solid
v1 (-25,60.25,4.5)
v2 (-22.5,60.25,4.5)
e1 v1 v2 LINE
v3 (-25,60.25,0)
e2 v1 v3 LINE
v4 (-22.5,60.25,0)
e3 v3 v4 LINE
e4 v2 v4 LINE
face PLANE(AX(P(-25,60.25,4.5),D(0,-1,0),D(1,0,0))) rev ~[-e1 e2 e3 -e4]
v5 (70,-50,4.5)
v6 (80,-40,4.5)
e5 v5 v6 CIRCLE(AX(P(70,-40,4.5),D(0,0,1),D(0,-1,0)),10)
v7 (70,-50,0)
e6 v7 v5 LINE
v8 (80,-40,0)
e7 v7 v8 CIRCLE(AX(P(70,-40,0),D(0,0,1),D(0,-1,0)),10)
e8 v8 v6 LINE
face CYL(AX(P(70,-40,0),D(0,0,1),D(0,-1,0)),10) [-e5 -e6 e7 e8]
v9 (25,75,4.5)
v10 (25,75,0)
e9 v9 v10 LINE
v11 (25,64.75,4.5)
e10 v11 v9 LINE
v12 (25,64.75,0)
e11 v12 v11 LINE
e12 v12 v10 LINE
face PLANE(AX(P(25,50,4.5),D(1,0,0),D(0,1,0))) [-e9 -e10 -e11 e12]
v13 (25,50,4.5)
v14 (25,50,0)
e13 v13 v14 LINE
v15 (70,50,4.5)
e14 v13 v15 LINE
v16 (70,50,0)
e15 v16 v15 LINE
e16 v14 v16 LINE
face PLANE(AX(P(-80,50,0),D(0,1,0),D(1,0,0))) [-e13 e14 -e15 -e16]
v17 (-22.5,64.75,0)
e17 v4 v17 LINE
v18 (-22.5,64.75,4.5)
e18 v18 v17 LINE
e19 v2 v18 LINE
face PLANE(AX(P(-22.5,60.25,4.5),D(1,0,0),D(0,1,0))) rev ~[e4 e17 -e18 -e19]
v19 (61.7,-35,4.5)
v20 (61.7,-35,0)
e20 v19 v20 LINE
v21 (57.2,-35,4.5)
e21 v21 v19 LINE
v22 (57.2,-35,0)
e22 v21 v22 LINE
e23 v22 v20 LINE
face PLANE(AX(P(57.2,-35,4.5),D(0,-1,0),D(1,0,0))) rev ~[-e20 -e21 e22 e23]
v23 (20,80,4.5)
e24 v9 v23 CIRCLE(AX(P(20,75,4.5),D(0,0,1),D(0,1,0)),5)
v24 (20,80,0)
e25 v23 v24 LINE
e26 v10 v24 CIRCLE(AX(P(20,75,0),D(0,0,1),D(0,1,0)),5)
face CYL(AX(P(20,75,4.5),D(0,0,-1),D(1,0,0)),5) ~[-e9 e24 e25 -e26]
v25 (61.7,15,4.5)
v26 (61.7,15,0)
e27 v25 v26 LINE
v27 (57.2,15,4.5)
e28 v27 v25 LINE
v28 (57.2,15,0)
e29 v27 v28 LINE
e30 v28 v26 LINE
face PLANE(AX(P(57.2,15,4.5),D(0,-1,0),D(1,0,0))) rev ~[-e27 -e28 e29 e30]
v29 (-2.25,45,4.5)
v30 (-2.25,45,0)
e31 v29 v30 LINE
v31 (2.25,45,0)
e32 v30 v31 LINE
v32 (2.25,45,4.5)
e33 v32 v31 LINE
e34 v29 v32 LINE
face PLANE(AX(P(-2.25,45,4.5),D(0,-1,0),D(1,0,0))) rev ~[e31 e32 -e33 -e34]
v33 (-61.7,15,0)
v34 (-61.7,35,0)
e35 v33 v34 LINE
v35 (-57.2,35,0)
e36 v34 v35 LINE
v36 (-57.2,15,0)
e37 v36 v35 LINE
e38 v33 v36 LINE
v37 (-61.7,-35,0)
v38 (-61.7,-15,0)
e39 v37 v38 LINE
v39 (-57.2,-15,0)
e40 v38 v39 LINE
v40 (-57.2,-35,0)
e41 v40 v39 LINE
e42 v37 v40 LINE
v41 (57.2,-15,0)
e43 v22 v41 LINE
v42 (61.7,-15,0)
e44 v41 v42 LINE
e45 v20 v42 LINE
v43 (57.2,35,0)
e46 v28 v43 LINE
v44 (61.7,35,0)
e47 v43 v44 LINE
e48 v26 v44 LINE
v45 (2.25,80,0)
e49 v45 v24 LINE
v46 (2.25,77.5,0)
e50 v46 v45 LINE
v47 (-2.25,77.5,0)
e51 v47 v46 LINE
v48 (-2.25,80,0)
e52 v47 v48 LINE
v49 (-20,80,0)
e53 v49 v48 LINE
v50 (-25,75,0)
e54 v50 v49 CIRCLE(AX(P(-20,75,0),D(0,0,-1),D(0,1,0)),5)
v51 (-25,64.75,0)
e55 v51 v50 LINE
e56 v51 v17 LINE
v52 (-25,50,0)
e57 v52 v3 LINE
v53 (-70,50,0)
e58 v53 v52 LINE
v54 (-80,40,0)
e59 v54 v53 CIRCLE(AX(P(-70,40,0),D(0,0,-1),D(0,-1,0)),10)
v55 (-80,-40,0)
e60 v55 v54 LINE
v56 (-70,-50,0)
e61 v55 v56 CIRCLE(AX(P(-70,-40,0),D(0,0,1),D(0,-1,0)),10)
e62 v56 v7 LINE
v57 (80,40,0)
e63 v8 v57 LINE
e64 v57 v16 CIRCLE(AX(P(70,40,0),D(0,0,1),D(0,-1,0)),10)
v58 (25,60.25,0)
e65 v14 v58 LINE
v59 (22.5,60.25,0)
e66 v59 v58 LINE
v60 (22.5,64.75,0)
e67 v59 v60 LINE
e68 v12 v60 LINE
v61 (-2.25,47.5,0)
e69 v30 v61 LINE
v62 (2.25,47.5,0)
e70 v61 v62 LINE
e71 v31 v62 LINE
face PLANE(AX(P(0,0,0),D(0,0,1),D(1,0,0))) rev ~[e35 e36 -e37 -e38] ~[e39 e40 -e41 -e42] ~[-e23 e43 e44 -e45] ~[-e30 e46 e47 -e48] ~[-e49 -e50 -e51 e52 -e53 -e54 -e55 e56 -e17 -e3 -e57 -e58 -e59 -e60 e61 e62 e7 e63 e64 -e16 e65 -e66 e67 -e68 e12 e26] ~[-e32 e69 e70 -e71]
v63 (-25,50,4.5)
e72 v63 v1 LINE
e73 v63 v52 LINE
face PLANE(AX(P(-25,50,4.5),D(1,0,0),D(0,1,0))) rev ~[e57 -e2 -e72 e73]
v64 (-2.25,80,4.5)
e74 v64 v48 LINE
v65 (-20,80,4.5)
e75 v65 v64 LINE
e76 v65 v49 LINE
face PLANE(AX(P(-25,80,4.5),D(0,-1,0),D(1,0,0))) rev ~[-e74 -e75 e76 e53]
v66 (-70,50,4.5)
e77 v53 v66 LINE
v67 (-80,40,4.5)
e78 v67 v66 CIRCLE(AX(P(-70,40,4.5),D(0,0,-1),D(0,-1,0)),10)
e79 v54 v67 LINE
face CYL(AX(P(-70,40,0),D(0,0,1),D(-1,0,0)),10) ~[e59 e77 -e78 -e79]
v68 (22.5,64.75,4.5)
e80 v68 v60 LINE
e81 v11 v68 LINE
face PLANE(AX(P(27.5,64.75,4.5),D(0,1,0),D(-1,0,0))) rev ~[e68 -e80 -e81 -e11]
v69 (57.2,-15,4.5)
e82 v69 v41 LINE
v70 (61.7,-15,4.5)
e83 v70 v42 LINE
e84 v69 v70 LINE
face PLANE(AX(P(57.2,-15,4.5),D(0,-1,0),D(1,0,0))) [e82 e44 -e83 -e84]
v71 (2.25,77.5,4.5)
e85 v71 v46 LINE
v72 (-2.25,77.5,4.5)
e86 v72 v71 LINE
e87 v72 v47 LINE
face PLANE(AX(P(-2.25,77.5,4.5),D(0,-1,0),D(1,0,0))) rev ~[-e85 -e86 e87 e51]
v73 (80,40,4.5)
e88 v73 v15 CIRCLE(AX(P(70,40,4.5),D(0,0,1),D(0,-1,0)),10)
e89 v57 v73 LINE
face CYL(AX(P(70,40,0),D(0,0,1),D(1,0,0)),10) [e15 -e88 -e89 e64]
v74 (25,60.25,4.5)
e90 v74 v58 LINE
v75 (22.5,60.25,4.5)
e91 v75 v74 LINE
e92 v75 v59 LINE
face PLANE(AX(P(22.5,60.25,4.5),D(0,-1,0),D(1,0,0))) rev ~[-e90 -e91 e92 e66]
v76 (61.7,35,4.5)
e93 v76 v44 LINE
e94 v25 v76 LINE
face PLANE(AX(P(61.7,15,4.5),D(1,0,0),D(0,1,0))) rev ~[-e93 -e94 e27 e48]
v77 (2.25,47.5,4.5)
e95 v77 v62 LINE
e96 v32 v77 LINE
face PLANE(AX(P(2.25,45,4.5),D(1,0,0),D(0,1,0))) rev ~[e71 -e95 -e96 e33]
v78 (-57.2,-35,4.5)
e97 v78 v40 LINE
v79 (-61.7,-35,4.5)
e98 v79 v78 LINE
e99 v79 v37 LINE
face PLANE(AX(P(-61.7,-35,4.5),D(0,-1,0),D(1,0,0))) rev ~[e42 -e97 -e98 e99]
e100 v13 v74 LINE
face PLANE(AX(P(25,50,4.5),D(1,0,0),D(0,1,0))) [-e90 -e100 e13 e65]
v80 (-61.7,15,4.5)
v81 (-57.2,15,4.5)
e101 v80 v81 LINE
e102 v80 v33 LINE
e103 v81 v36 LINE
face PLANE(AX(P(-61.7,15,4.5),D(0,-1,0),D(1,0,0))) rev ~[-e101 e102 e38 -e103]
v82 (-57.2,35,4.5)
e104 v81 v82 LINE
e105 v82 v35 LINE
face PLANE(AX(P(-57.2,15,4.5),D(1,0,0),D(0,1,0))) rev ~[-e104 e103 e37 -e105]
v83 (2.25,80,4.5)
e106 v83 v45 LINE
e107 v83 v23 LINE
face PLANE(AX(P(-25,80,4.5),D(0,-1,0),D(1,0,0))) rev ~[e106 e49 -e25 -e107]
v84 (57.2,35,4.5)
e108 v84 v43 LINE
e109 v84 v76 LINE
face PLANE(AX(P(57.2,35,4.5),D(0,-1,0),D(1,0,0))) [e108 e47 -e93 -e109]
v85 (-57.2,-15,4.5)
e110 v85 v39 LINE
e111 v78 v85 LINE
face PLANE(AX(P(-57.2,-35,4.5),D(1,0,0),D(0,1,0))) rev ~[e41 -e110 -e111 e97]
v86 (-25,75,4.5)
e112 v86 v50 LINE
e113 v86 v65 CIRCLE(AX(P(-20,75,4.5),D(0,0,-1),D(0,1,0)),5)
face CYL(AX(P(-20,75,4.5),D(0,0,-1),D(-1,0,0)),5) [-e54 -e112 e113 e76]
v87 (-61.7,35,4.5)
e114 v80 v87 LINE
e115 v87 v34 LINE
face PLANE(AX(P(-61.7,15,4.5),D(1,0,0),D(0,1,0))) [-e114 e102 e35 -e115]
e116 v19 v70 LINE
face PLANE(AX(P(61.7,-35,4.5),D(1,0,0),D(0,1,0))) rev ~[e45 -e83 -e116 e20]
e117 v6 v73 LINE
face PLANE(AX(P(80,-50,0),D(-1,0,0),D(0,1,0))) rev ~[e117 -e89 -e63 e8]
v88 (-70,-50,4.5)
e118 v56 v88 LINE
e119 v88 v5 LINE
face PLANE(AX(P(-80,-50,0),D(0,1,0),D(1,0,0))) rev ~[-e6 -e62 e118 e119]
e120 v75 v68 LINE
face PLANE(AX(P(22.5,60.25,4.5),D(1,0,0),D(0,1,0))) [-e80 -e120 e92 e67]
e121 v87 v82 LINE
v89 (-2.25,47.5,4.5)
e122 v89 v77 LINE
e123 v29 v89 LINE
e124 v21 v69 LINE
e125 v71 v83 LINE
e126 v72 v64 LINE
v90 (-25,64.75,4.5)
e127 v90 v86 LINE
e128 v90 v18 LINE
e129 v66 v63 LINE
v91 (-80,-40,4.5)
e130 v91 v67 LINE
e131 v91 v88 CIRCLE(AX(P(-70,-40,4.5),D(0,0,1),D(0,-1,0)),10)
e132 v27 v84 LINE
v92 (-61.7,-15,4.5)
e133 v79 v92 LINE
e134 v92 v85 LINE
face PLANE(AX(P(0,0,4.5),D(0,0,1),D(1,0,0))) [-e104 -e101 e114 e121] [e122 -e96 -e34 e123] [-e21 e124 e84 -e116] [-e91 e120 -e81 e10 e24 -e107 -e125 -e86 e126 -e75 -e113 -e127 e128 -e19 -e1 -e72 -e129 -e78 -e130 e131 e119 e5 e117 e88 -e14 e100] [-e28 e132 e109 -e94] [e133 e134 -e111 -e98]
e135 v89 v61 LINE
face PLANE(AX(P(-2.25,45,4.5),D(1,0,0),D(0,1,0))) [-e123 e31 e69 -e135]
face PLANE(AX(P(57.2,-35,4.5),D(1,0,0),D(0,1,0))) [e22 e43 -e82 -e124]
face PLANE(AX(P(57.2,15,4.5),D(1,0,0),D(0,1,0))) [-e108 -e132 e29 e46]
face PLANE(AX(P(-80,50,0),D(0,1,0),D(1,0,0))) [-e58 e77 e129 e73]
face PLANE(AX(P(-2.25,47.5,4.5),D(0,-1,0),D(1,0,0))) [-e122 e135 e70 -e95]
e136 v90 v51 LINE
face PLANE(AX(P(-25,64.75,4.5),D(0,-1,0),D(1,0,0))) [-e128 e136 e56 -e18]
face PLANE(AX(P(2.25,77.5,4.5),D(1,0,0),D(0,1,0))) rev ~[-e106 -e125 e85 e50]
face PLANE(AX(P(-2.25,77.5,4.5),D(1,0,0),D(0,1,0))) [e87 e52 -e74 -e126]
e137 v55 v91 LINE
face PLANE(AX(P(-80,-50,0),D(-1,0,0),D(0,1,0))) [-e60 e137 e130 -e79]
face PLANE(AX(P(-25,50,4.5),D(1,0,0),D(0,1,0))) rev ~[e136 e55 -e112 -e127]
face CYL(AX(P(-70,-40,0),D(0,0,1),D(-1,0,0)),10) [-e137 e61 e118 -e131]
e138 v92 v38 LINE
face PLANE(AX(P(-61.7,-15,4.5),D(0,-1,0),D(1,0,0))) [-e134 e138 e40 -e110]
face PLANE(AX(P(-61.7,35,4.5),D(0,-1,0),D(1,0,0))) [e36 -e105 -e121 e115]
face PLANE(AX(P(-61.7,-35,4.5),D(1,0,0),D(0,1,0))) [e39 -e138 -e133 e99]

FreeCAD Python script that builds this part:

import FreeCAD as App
import Part
import Sketcher
from FreeCAD import Vector


def edges_at(feature, points):
    """Names of the edges that pass closest to the given points."""
    edges = feature.Shape.Edges
    near = lambda p: min(range(len(edges)), key=lambda i: edges[i].distToShape(Part.Vertex(*p))[0])
    return sorted({f"Edge{near(p) + 1}" for p in points})


def add_polygon(sketch, points):
    """Adds a closed chain of lines whose ends are joined by coincident constraints."""
    first, n = sketch.GeometryCount, len(points)
    for a, b in zip(points, points[1:] + points[:1]):
        sketch.addGeometry(Part.LineSegment(App.Vector(*a, 0), App.Vector(*b, 0)), False)
    for i in range(n):
        sketch.addConstraint(Sketcher.Constraint("Coincident", first + i, 2, first + (i + 1) % n, 1))

doc = App.newDocument("Part")
params = doc.addObject("Spreadsheet::Sheet", "Params")
for row, (alias, value) in enumerate([
    ("sketch1_width", "160 mm"),
    ("sketch1_height", "100 mm"),
    ("pad1_length", "4.5 mm"),
    ("fillet_radius", "10 mm"),
    ("sketch2_height", "20 mm"),
    ("sketch2_width", "4.5 mm"),
    ("pocket1_length", "5 mm"),
    ("sketch3_width", "50 mm"),
    ("sketch3_height", "30 mm"),
    ("pad2_length", "4.5 mm"),
    ("fillet2_radius", "5 mm"),
    ("sketch4_width", "5 mm"),
    ("sketch4_width2", "4.5 mm"),
    ("sketch4_width3", "2.5 mm"),
    ("pocket2_length", "4.5 mm"),
], start=1):
    params.set(f"A{row}", alias)
    params.set(f"B{row}", "=" + value)
    params.setAlias(f"B{row}", alias)

body = doc.addObject("PartDesign::Body", "Body")

# Sketch on XY plane
sketch1 = body.newObject("Sketcher::SketchObject", "Sketch")
sketch1.AttachmentSupport = (doc.getObject("XY_Plane"), [""])
sketch1.MapMode = "FlatFace"
add_polygon(sketch1, [(-80, 50), (-80, -50), (80, -50), (80, 50)])  # lines 0-3
sketch1.addConstraint([
    Sketcher.Constraint("Vertical", 0),
    Sketcher.Constraint("Horizontal", 1),
    Sketcher.Constraint("Vertical", 2),
    Sketcher.Constraint("Horizontal", 3),
    Sketcher.Constraint("Symmetric", 0, 2, 2, 2, -1, 1),
    Sketcher.Constraint("DistanceX", 1, 1, 1, 2, 160.0),
    Sketcher.Constraint("DistanceY", 0, 2, 0, 1, 100.0),
])
sketch1.setExpression("Constraints[9]", "Params.sketch1_width")
sketch1.setExpression("Constraints[10]", "Params.sketch1_height")
pad1 = body.newObject("PartDesign::Pad", "Pad")
pad1.Profile = sketch1
pad1.setExpression("Length", "Params.pad1_length")
doc.recompute()

fillet = body.newObject("PartDesign::Fillet", "Fillet")
fillet.Base = (pad1, edges_at(pad1, [
    (80, -50, 2.25),
    (-80, -50, 2.25),
    (-80, 50, 2.25),
    (80, 50, 2.25),
]))
fillet.setExpression("Radius", "Params.fillet_radius")

# Sketch on XY plane
sketch2 = body.newObject("Sketcher::SketchObject", "Sketch001")
sketch2.AttachmentSupport = (doc.getObject("XY_Plane"), [""])
sketch2.MapMode = "FlatFace"
sketch2.AttachmentOffset = App.Placement(Vector(0, 0, 4.5), App.Rotation())
add_polygon(sketch2, [(-61.7, 35), (-61.7, 15), (-57.2, 15), (-57.2, 35)])  # lines 0-3
add_polygon(sketch2, [(-61.7, -15), (-61.7, -35), (-57.2, -35), (-57.2, -15)])  # lines 4-7
add_polygon(sketch2, [(57.2, -15), (57.2, -35), (61.7, -35), (61.7, -15)])  # lines 8-11
add_polygon(sketch2, [(57.2, 35), (57.2, 15), (61.7, 15), (61.7, 35)])  # lines 12-15
sketch2.addConstraint([
    Sketcher.Constraint("Vertical", 0),
    Sketcher.Constraint("Horizontal", 1),
    Sketcher.Constraint("Vertical", 2),
    Sketcher.Constraint("Horizontal", 3),
    Sketcher.Constraint("Vertical", 4),
    Sketcher.Constraint("Horizontal", 5),
    Sketcher.Constraint("Vertical", 6),
    Sketcher.Constraint("Horizontal", 7),
    Sketcher.Constraint("Vertical", 8),
    Sketcher.Constraint("Horizontal", 9),
    Sketcher.Constraint("Vertical", 10),
    Sketcher.Constraint("Horizontal", 11),
    Sketcher.Constraint("Vertical", 12),
    Sketcher.Constraint("Horizontal", 13),
    Sketcher.Constraint("Vertical", 14),
    Sketcher.Constraint("Horizontal", 15),
    Sketcher.Constraint("Symmetric", 2, 2, 8, 2, -1, 1),
    Sketcher.Constraint("Symmetric", 0, 2, 10, 2, -1, 1),
    Sketcher.Constraint("Symmetric", 6, 2, 12, 2, -1, 1),
    Sketcher.Constraint("Symmetric", 4, 2, 14, 2, -1, 1),
    Sketcher.Constraint("Symmetric", 5, 2, 8, 2, -2),
    Sketcher.Constraint("Symmetric", 7, 2, 10, 2, -2),
    Sketcher.Constraint("DistanceY", 0, 2, 0, 1, 20.0),
    Sketcher.Constraint("DistanceX", 1, 1, 1, 2, 4.5),
    Sketcher.Constraint("DistanceY", -1, 1, 0, 2, 15.0),
    Sketcher.Constraint("DistanceX", 0, 2, -1, 1, 61.7),
])
sketch2.setExpression("Constraints[38]", "Params.sketch2_height")
sketch2.setExpression("Constraints[39]", "Params.sketch2_width")
pocket1 = body.newObject("PartDesign::Pocket", "Pocket")
pocket1.Profile = sketch2
pocket1.setExpression("Length", "Params.pocket1_length")

# Sketch on XY plane
sketch3 = body.newObject("Sketcher::SketchObject", "Sketch002")
sketch3.AttachmentSupport = (doc.getObject("XY_Plane"), [""])
sketch3.MapMode = "FlatFace"
sketch3.AttachmentOffset = App.Placement(Vector(0, 0, 4.5), App.Rotation())
add_polygon(sketch3, [(-25, 80), (-25, 50), (25, 50), (25, 80)])  # lines 0-3
sketch3.addConstraint([
    Sketcher.Constraint("Vertical", 0),
    Sketcher.Constraint("Horizontal", 1),
    Sketcher.Constraint("Vertical", 2),
    Sketcher.Constraint("Horizontal", 3),
    Sketcher.Constraint("DistanceX", 1, 1, 1, 2, 50.0),
    Sketcher.Constraint("DistanceY", 0, 2, 0, 1, 30.0),
    Sketcher.Constraint("DistanceX", 0, 2, -1, 1, 25.0),
    Sketcher.Constraint("DistanceY", -1, 1, 0, 2, 50.0),
])
sketch3.setExpression("Constraints[8]", "Params.sketch3_width")
sketch3.setExpression("Constraints[9]", "Params.sketch3_height")
pad2 = body.newObject("PartDesign::Pad", "Pad001")
pad2.Profile = sketch3
pad2.setExpression("Length", "Params.pad2_length")
pad2.Reversed = True
doc.recompute()

fillet2 = body.newObject("PartDesign::Fillet", "Fillet001")
fillet2.Base = (pad2, edges_at(pad2, [(-25, 80, 2.25), (25, 80, 2.25)]))
fillet2.setExpression("Radius", "Params.fillet2_radius")

# Sketch on XY plane
sketch4 = body.newObject("Sketcher::SketchObject", "Sketch003")
sketch4.AttachmentSupport = (doc.getObject("XY_Plane"), [""])
sketch4.MapMode = "FlatFace"
sketch4.AttachmentOffset = App.Placement(Vector(0, 0, 4.5), App.Rotation())
add_polygon(sketch4, [(-2.25, 80), (-2.25, 77.5), (2.25, 77.5), (2.25, 80)])  # lines 0-3
add_polygon(sketch4, [(27.5, 60.25), (27.5, 64.75), (22.5, 64.75), (22.5, 60.25)])  # lines 4-7
add_polygon(sketch4, [(-25, 64.75), (-25, 60.25), (-22.5, 60.25), (-22.5, 64.75)])  # lines 8-11
add_polygon(sketch4, [(-2.25, 47.5), (-2.25, 45), (2.25, 45), (2.25, 47.5)])  # lines 12-15
sketch4.addConstraint([
    Sketcher.Constraint("Vertical", 0),
    Sketcher.Constraint("Horizontal", 1),
    Sketcher.Constraint("Vertical", 2),
    Sketcher.Constraint("Horizontal", 3),
    Sketcher.Constraint("Vertical", 4),
    Sketcher.Constraint("Horizontal", 5),
    Sketcher.Constraint("Vertical", 6),
    Sketcher.Constraint("Horizontal", 7),
    Sketcher.Constraint("Vertical", 8),
    Sketcher.Constraint("Horizontal", 9),
    Sketcher.Constraint("Vertical", 10),
    Sketcher.Constraint("Horizontal", 11),
    Sketcher.Constraint("Vertical", 12),
    Sketcher.Constraint("Horizontal", 13),
    Sketcher.Constraint("Vertical", 14),
    Sketcher.Constraint("Horizontal", 15),
    Sketcher.Constraint("Symmetric", 6, 2, 9, 2, -2),
    Sketcher.Constraint("Horizontal", 5, 2, 10, 2),
    Sketcher.Constraint("Vertical", 3, 2, 12, 2),
    Sketcher.Constraint("Vertical", 2, 2, 13, 2),
    Sketcher.Constraint("Equal", 11, 0),
    Sketcher.Constraint("Equal", 15, 4),
    Sketcher.Constraint("Equal", 2, 12),
    Sketcher.Constraint("DistanceX", 5, 2, 5, 1, 5.0),
    Sketcher.Constraint("DistanceX", 1, 1, 1, 2, 4.5),
    Sketcher.Constraint("DistanceX", 9, 1, 9, 2, 2.5),
    Sketcher.Constraint("DistanceY", -1, 1, 2, 2, 80.0),
    Sketcher.Constraint("DistanceX", 8, 2, -1, 1, 25.0),
    Sketcher.Constraint("DistanceY", -1, 1, 12, 2, 45.0),
    Sketcher.Constraint("DistanceX", 0, 2, -1, 1, 2.25),
    Sketcher.Constraint("DistanceY", -1, 1, 4, 2, 64.75),
])
sketch4.setExpression("Constraints[39]", "Params.sketch4_width")
sketch4.setExpression("Constraints[40]", "Params.sketch4_width2")
sketch4.setExpression("Constraints[41]", "Params.sketch4_width3")
pocket2 = body.newObject("PartDesign::Pocket", "Pocket001")
pocket2.Profile = sketch4
pocket2.setExpression("Length", "Params.pocket2_length")

doc.recompute()
